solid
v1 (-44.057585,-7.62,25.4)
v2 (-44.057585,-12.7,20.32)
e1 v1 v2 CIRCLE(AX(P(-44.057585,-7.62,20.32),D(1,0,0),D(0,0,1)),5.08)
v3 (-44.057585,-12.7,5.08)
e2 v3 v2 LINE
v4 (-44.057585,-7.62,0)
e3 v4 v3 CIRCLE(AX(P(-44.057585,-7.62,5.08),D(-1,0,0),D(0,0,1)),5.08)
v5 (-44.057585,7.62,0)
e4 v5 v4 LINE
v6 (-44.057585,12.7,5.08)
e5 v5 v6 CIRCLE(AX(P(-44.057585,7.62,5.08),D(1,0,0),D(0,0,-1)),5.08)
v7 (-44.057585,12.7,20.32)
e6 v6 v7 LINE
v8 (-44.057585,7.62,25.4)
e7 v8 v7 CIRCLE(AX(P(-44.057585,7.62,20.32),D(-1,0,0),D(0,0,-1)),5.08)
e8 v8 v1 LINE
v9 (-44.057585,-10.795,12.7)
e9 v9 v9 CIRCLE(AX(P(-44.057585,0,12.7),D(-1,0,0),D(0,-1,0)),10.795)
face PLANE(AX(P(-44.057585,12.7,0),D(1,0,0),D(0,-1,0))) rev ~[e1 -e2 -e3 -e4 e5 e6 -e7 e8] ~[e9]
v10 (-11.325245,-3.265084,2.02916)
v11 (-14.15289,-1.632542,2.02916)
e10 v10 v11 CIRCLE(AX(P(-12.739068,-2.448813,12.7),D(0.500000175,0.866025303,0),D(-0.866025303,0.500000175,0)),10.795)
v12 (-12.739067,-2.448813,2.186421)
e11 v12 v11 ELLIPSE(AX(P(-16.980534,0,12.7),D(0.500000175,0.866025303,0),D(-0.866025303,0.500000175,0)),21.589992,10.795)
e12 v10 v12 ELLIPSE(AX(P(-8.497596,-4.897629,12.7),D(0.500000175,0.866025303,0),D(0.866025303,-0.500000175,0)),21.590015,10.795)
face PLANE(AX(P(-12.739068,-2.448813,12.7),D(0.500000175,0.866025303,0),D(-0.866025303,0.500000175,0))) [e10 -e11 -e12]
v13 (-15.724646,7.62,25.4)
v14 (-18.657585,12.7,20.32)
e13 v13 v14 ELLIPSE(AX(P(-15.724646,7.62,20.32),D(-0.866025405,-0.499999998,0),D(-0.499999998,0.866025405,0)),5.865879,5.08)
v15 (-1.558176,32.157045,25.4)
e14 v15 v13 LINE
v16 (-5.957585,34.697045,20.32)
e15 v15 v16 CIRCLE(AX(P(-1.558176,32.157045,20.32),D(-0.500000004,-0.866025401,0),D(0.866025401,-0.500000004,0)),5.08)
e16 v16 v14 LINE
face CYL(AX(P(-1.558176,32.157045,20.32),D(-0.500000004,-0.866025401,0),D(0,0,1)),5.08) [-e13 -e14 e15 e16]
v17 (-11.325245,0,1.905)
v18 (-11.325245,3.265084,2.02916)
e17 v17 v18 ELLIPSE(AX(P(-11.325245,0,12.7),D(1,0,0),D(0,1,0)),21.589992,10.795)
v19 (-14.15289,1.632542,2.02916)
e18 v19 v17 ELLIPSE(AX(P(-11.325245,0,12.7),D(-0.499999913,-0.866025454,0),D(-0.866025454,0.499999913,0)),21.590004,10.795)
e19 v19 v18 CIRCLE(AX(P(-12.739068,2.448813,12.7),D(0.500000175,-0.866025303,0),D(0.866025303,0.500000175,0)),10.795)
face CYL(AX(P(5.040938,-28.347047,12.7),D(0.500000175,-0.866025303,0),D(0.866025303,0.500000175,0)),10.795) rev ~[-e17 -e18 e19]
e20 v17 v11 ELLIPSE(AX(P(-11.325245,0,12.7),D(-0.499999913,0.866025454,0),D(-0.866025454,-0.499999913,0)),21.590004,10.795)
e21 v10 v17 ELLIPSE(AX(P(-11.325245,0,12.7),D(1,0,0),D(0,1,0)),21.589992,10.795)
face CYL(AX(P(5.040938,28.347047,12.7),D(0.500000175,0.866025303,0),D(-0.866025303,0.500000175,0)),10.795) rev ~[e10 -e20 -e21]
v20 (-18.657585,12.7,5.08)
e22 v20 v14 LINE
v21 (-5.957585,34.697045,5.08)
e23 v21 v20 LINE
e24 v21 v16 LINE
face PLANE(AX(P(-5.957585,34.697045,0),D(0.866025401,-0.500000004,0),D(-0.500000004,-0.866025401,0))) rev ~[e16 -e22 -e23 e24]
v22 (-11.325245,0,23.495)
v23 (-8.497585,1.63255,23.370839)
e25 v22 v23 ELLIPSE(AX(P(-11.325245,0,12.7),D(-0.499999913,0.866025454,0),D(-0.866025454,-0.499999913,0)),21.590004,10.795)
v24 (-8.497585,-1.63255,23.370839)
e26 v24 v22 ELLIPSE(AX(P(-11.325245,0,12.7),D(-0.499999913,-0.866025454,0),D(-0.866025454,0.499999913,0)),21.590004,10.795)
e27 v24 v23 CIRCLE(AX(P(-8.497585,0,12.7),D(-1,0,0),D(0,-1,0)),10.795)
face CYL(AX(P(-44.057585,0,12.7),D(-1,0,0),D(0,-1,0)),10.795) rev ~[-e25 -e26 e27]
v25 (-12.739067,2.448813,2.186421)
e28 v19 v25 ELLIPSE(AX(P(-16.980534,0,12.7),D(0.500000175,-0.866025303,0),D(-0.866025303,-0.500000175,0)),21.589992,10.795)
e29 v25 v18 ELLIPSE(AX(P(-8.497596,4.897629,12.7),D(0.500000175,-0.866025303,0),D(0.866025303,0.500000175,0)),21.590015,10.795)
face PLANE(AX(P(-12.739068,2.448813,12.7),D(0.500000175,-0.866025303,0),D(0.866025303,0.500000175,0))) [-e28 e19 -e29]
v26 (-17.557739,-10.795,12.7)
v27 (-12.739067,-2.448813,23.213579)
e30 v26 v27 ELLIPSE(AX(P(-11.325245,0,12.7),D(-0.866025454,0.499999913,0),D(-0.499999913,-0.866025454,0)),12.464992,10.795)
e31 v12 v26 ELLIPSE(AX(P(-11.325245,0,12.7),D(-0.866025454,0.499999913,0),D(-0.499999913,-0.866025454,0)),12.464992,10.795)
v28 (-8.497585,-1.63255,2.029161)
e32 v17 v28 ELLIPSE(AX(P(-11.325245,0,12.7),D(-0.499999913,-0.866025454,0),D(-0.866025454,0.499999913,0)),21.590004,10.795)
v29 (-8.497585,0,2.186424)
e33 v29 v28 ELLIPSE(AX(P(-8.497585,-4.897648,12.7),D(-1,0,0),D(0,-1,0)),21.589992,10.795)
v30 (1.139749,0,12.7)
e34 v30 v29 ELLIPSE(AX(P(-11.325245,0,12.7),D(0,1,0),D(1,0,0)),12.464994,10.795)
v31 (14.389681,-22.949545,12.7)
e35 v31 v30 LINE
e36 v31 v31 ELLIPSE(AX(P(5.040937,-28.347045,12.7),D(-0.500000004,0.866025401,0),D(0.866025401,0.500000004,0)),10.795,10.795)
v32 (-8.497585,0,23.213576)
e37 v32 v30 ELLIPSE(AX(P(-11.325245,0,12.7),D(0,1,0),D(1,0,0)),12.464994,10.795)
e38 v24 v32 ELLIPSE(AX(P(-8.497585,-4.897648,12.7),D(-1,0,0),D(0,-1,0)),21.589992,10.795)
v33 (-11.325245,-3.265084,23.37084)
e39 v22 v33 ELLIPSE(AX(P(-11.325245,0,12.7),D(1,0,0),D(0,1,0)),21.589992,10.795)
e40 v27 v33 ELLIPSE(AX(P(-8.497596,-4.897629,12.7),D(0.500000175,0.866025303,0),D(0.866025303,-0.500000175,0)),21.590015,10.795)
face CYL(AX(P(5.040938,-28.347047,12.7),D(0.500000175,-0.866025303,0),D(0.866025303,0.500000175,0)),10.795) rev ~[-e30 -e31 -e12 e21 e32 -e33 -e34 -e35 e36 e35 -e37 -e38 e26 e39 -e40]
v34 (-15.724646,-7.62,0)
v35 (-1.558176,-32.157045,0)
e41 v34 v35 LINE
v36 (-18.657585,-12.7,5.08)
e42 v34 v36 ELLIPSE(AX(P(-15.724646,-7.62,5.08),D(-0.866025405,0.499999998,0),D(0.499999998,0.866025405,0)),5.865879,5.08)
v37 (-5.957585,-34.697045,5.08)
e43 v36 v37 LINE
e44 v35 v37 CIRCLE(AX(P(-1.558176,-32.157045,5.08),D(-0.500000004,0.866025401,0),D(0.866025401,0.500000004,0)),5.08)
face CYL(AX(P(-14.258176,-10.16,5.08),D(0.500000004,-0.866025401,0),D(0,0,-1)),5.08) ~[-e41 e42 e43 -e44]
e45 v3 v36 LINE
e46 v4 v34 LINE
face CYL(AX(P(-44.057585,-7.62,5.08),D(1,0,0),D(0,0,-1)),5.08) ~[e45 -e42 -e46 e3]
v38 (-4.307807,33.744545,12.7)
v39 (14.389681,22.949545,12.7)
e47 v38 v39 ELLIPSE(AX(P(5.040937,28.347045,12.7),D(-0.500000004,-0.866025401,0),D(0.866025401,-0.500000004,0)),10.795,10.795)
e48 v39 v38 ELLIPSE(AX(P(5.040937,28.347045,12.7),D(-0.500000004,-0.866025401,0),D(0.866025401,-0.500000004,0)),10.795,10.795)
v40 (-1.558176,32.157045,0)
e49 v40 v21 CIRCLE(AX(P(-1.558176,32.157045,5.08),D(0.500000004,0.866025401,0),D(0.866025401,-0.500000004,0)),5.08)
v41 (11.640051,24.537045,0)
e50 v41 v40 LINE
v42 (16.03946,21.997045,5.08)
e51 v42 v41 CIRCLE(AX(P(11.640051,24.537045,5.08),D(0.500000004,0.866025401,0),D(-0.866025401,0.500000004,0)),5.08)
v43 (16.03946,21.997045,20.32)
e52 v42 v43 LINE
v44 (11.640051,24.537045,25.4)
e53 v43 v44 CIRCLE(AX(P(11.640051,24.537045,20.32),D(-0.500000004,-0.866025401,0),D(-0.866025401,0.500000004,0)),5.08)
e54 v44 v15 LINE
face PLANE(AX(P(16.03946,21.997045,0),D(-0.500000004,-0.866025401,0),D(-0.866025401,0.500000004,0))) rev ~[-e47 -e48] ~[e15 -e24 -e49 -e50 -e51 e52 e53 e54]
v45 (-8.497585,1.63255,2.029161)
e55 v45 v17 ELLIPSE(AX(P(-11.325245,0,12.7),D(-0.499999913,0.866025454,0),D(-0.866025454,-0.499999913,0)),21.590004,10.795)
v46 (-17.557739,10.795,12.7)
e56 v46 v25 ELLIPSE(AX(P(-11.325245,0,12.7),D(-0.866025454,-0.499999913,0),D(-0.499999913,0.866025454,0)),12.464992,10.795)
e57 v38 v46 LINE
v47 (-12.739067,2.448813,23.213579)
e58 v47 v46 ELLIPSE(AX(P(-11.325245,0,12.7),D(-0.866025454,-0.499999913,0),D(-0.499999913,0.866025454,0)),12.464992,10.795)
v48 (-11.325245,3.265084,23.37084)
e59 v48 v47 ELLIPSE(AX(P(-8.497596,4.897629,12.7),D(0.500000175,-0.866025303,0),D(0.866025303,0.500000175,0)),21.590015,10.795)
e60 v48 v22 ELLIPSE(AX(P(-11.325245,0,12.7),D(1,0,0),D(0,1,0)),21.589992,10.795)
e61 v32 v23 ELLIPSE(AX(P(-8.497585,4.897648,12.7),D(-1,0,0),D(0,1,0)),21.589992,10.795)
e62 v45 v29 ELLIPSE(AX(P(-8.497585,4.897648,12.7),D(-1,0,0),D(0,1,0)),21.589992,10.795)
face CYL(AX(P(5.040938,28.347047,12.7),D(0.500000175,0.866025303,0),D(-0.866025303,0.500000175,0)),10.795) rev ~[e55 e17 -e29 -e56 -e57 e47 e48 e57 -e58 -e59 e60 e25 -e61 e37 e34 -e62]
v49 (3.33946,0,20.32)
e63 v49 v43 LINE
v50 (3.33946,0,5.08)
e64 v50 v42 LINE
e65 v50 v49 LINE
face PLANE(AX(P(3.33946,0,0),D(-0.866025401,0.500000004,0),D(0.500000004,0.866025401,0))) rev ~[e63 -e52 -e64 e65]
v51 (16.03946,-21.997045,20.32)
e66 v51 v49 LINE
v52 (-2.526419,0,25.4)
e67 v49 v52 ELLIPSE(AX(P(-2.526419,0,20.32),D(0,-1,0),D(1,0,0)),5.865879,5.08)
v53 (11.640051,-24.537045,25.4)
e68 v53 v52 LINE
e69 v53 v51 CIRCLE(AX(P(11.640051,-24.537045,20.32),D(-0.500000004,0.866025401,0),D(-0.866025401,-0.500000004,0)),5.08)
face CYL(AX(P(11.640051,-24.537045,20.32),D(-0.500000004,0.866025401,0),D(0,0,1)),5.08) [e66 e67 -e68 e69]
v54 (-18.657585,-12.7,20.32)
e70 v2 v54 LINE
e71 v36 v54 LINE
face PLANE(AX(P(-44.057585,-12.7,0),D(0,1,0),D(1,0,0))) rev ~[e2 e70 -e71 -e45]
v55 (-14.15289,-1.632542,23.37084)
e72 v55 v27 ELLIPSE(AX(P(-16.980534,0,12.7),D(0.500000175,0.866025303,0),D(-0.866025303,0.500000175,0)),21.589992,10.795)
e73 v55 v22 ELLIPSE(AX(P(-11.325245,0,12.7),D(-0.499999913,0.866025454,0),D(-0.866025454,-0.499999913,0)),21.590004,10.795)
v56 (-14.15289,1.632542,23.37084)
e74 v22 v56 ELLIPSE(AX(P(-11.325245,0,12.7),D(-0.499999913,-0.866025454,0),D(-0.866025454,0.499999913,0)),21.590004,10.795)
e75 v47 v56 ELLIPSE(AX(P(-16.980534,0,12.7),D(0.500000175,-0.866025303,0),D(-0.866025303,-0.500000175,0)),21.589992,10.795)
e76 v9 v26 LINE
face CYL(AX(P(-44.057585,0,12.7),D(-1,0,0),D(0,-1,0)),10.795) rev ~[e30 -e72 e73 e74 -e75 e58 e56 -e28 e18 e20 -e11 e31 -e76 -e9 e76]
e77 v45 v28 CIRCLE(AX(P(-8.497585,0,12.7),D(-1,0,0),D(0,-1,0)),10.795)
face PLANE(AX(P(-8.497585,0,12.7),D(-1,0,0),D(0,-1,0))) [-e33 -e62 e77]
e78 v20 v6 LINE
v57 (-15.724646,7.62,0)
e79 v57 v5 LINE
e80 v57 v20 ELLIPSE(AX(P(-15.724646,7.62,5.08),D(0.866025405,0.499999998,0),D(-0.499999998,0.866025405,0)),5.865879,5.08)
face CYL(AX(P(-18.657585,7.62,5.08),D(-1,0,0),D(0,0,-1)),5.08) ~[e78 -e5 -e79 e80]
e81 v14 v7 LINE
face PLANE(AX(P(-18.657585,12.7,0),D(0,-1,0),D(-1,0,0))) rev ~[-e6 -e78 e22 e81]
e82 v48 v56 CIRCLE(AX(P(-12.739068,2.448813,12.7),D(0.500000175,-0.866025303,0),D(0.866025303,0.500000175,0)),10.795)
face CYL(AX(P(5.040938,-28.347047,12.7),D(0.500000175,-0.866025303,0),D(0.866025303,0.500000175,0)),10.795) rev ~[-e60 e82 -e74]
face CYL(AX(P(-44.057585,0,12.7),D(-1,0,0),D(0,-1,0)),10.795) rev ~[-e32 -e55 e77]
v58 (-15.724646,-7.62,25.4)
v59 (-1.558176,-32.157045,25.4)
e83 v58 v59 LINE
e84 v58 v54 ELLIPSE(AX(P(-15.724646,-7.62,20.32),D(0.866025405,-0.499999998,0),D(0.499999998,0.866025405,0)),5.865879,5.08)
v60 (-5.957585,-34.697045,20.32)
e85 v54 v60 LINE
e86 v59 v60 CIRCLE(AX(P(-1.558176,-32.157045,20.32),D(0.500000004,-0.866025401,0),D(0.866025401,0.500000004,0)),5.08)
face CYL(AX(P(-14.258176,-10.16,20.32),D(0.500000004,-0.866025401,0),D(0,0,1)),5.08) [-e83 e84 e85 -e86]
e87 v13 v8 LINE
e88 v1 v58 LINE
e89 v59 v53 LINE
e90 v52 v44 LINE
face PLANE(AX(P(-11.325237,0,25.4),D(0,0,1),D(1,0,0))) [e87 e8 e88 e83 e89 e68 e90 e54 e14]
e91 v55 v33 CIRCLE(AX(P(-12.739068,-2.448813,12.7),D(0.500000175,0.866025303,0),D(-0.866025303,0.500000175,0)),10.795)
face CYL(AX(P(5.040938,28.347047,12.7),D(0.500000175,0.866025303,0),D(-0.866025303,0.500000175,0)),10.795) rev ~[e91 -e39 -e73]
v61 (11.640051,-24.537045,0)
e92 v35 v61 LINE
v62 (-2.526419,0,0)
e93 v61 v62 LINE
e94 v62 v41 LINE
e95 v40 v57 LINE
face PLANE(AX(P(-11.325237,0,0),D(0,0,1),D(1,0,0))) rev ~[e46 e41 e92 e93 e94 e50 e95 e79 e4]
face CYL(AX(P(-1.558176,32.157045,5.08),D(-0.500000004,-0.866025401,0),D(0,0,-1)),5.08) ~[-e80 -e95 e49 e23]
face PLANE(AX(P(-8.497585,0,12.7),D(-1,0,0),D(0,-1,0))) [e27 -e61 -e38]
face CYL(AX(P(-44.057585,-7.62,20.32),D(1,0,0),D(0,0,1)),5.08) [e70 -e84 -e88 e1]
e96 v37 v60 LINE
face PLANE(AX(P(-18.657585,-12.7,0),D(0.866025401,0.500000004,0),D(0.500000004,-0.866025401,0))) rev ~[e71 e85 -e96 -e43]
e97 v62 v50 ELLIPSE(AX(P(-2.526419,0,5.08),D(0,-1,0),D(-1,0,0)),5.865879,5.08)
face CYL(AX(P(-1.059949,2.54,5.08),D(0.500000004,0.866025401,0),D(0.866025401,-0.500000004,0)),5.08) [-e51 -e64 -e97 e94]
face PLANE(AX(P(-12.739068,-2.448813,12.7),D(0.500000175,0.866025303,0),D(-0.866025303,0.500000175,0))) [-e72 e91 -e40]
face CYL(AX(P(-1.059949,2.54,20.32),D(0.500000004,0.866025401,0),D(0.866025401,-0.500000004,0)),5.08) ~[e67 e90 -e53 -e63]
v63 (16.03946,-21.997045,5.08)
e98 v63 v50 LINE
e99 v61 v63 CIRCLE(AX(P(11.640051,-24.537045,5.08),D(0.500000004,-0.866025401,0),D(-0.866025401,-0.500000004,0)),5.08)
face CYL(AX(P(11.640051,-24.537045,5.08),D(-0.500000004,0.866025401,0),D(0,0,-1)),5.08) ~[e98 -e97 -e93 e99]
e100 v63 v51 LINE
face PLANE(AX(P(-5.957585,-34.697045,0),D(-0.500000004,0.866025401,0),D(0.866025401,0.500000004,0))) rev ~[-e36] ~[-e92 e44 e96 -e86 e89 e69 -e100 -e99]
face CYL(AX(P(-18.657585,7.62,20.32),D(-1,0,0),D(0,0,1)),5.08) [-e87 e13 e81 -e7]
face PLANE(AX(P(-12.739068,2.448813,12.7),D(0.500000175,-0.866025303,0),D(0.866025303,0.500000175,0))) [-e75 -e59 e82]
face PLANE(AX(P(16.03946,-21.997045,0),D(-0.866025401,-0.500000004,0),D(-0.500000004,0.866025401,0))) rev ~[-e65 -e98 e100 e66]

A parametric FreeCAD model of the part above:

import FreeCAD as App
import Part
import Sketcher
from FreeCAD import Vector
Q = App.Units.Quantity


def edges_at(feature, points):
    """Names of the edges that pass closest to the given points."""
    edges = feature.Shape.Edges
    near = lambda p: min(range(len(edges)), key=lambda i: edges[i].distToShape(Part.Vertex(*p))[0])
    return sorted({f"Edge{near(p) + 1}" for p in points})

doc = App.newDocument("Part")
params = doc.addObject("Spreadsheet::Sheet", "Params")
for row, (alias, value) in enumerate([
    ("sketch1_width", "1 in"),
    ("sketch1_length", "1 in"),
    ("pad1_length", "1 in"),
    ("sketch2_diameter", "0.85 in"),
    ("pocket1_length", "1.4 in"),
    ("sketch3_diameter", "0.85 in"),
    ("pocket2_length", "1.4 in"),
    ("sketch4_diameter", "0.85 in"),
    ("pocket3_length", "1.4 in"),
    ("fillet_radius", "0.2 in"),
], start=1):
    params.set(f"A{row}", alias)
    params.set(f"B{row}", "=" + value)
    params.setAlias(f"B{row}", alias)

body = doc.addObject("PartDesign::Body", "Body")

# Sketch on XY plane
sketch1 = body.newObject("Sketcher::SketchObject", "Sketch")
sketch1.AttachmentSupport = (doc.getObject("XY_Plane"), [""])
sketch1.MapMode = "FlatFace"
sketch1.addGeometry([
    Part.LineSegment(Vector(16.03946, 21.997045, 0), Vector(-5.957585, 34.697045, 0)),  # 0
    Part.LineSegment(Vector(-5.957585, 34.697045, 0), Vector(-18.657585, 12.7, 0)),  # 1
    Part.LineSegment(Vector(-18.657585, 12.7, 0), Vector(-44.057585, 12.7, 0)),  # 2
    Part.LineSegment(Vector(-44.057585, 12.7, 0), Vector(-44.057585, -12.7, 0)),  # 3
    Part.LineSegment(Vector(-44.057585, -12.7, 0), Vector(-18.657585, -12.7, 0)),  # 4
    Part.LineSegment(Vector(-18.657585, -12.7, 0), Vector(-5.957585, -34.697045, 0)),  # 5
    Part.LineSegment(Vector(-5.957585, -34.697045, 0), Vector(16.03946, -21.997045, 0)),  # 6
    Part.LineSegment(Vector(16.03946, -21.997045, 0), Vector(3.33946, 0, 0)),  # 7
    Part.LineSegment(Vector(3.33946, 0, 0), Vector(16.03946, 21.997045, 0)),  # 8
], False)
sketch1.addConstraint([
    Sketcher.Constraint("Coincident", 0, 2, 1, 1),
    Sketcher.Constraint("Coincident", 1, 2, 2, 1),
    Sketcher.Constraint("Coincident", 2, 2, 3, 1),
    Sketcher.Constraint("Coincident", 3, 2, 4, 1),
    Sketcher.Constraint("Coincident", 4, 2, 5, 1),
    Sketcher.Constraint("Coincident", 5, 2, 6, 1),
    Sketcher.Constraint("Coincident", 6, 2, 7, 1),
    Sketcher.Constraint("Coincident", 7, 2, 8, 1),
    Sketcher.Constraint("Coincident", 8, 2, 0, 1),
    Sketcher.Constraint("Horizontal", 2),
    Sketcher.Constraint("Vertical", 3),
    Sketcher.Constraint("Horizontal", 4),
    Sketcher.Constraint("Symmetric", 1, 2, 4, 2, -1),
    Sketcher.Constraint("Symmetric", 0, 2, 5, 2, -1),
    Sketcher.Constraint("Symmetric", 6, 2, 8, 2, -1),
    Sketcher.Constraint("PointOnObject", 7, 2, -1),
    Sketcher.Constraint("Perpendicular", 0, 1),
    Sketcher.Constraint("Perpendicular", 6, 7),
    Sketcher.Constraint("Equal", 4, 3),
    Sketcher.Constraint("Equal", 0, 1),
    Sketcher.Constraint("Equal", 6, 7),
    Sketcher.Constraint("DistanceX", 2, 2, 2, 1, Q("1 in")),
    Sketcher.Constraint("Distance", 0, Q("1 in")),
    Sketcher.Constraint("DistanceX", -1, 1, 6, 2, 16.03946),
])
sketch1.setExpression("Constraints[21]", "Params.sketch1_width")
sketch1.setExpression("Constraints[22]", "Params.sketch1_length")
pad1 = body.newObject("PartDesign::Pad", "Pad")
pad1.Profile = sketch1
pad1.setExpression("Length", "Params.pad1_length")

# Sketch on YZ plane
sketch2 = body.newObject("Sketcher::SketchObject", "Sketch001")
sketch2.AttachmentSupport = (doc.getObject("YZ_Plane"), [""])
sketch2.MapMode = "FlatFace"
sketch2.AttachmentOffset = App.Placement(Vector(0, 0, -44.057585), App.Rotation())
sketch2.addGeometry(Part.Circle(Vector(0, 12.7, 0), Vector(0, 0, 1), 10.795), False)
sketch2.addConstraint([
    Sketcher.Constraint("PointOnObject", 0, 3, -2),
    Sketcher.Constraint("Diameter", 0, Q("0.85 in")),
    Sketcher.Constraint("DistanceY", -1, 1, 0, 3, Q("0.5 in")),
])
sketch2.setExpression("Constraints[1]", "Params.sketch2_diameter")
pocket1 = body.newObject("PartDesign::Pocket", "Pocket")
pocket1.Profile = sketch2
pocket1.setExpression("Length", "Params.pocket1_length")
pocket1.Reversed = True

# Sketch on an angled plane
sketch3 = body.newObject("Sketcher::SketchObject", "Sketch002")
sketch3.Placement = App.Placement(Vector(13.534865, 23.443074, 0), App.Rotation(Vector(-0.866025303, 0.500000175, 0), Vector(0, 0, 1), Vector(0.500000175, 0.866025303, 0), "ZXY"))
sketch3.addGeometry(Part.Circle(Vector(9.807943, 12.7, 0), Vector(0, 0, 1), 10.795), False)
sketch3.addConstraint([
    Sketcher.Constraint("Diameter", 0, Q("0.85 in")),
    Sketcher.Constraint("DistanceY", -1, 1, 0, 3, Q("0.5 in")),
    Sketcher.Constraint("DistanceX", -1, 1, 0, 3, 9.807943),
])
sketch3.setExpression("Constraints[0]", "Params.sketch3_diameter")
pocket2 = body.newObject("PartDesign::Pocket", "Pocket001")
pocket2.Profile = sketch3
pocket2.setExpression("Length", "Params.pocket2_length")

# Sketch on an angled plane
sketch4 = body.newObject("Sketcher::SketchObject", "Sketch003")
sketch4.Placement = App.Placement(Vector(13.534865, -23.443074, 0), App.Rotation(Vector(0.866025303, 0.500000175, 0), Vector(0, 0, 1), Vector(0.500000175, -0.866025303, 0), "ZXY"))
sketch4.addGeometry(Part.Circle(Vector(-9.807943, 12.7, 0), Vector(0, 0, 1), 10.795), False)
sketch4.addConstraint([
    Sketcher.Constraint("Diameter", 0, Q("0.85 in")),
    Sketcher.Constraint("DistanceY", -1, 1, 0, 3, Q("0.5 in")),
    Sketcher.Constraint("DistanceX", 0, 3, -1, 1, 9.807943),
])
sketch4.setExpression("Constraints[0]", "Params.sketch4_diameter")
pocket3 = body.newObject("PartDesign::Pocket", "Pocket002")
pocket3.Profile = sketch4
pocket3.setExpression("Length", "Params.pocket3_length")
doc.recompute()

fillet = body.newObject("PartDesign::Fillet", "Fillet")
fillet.Base = (pocket3, edges_at(pocket3, [
    (-31.358, -12.7, 25.4),
    (-12.308, -23.699, 25.4),
    (-31.358, 12.7, 25.4),
    (-12.308, 23.699, 25.4),
    (9.689, 10.999, 25.4),
    (9.689, -10.999, 25.4),
    (-31.358, -12.7, 0),
    (-12.308, -23.699, 0),
    (9.689, -10.999, 0),
    (9.689, 10.999, 0),
    (-31.358, 12.7, 0),
    (-12.308, 23.699, 0),
]))
fillet.setExpression("Radius", "Params.fillet_radius")

doc.recompute()
